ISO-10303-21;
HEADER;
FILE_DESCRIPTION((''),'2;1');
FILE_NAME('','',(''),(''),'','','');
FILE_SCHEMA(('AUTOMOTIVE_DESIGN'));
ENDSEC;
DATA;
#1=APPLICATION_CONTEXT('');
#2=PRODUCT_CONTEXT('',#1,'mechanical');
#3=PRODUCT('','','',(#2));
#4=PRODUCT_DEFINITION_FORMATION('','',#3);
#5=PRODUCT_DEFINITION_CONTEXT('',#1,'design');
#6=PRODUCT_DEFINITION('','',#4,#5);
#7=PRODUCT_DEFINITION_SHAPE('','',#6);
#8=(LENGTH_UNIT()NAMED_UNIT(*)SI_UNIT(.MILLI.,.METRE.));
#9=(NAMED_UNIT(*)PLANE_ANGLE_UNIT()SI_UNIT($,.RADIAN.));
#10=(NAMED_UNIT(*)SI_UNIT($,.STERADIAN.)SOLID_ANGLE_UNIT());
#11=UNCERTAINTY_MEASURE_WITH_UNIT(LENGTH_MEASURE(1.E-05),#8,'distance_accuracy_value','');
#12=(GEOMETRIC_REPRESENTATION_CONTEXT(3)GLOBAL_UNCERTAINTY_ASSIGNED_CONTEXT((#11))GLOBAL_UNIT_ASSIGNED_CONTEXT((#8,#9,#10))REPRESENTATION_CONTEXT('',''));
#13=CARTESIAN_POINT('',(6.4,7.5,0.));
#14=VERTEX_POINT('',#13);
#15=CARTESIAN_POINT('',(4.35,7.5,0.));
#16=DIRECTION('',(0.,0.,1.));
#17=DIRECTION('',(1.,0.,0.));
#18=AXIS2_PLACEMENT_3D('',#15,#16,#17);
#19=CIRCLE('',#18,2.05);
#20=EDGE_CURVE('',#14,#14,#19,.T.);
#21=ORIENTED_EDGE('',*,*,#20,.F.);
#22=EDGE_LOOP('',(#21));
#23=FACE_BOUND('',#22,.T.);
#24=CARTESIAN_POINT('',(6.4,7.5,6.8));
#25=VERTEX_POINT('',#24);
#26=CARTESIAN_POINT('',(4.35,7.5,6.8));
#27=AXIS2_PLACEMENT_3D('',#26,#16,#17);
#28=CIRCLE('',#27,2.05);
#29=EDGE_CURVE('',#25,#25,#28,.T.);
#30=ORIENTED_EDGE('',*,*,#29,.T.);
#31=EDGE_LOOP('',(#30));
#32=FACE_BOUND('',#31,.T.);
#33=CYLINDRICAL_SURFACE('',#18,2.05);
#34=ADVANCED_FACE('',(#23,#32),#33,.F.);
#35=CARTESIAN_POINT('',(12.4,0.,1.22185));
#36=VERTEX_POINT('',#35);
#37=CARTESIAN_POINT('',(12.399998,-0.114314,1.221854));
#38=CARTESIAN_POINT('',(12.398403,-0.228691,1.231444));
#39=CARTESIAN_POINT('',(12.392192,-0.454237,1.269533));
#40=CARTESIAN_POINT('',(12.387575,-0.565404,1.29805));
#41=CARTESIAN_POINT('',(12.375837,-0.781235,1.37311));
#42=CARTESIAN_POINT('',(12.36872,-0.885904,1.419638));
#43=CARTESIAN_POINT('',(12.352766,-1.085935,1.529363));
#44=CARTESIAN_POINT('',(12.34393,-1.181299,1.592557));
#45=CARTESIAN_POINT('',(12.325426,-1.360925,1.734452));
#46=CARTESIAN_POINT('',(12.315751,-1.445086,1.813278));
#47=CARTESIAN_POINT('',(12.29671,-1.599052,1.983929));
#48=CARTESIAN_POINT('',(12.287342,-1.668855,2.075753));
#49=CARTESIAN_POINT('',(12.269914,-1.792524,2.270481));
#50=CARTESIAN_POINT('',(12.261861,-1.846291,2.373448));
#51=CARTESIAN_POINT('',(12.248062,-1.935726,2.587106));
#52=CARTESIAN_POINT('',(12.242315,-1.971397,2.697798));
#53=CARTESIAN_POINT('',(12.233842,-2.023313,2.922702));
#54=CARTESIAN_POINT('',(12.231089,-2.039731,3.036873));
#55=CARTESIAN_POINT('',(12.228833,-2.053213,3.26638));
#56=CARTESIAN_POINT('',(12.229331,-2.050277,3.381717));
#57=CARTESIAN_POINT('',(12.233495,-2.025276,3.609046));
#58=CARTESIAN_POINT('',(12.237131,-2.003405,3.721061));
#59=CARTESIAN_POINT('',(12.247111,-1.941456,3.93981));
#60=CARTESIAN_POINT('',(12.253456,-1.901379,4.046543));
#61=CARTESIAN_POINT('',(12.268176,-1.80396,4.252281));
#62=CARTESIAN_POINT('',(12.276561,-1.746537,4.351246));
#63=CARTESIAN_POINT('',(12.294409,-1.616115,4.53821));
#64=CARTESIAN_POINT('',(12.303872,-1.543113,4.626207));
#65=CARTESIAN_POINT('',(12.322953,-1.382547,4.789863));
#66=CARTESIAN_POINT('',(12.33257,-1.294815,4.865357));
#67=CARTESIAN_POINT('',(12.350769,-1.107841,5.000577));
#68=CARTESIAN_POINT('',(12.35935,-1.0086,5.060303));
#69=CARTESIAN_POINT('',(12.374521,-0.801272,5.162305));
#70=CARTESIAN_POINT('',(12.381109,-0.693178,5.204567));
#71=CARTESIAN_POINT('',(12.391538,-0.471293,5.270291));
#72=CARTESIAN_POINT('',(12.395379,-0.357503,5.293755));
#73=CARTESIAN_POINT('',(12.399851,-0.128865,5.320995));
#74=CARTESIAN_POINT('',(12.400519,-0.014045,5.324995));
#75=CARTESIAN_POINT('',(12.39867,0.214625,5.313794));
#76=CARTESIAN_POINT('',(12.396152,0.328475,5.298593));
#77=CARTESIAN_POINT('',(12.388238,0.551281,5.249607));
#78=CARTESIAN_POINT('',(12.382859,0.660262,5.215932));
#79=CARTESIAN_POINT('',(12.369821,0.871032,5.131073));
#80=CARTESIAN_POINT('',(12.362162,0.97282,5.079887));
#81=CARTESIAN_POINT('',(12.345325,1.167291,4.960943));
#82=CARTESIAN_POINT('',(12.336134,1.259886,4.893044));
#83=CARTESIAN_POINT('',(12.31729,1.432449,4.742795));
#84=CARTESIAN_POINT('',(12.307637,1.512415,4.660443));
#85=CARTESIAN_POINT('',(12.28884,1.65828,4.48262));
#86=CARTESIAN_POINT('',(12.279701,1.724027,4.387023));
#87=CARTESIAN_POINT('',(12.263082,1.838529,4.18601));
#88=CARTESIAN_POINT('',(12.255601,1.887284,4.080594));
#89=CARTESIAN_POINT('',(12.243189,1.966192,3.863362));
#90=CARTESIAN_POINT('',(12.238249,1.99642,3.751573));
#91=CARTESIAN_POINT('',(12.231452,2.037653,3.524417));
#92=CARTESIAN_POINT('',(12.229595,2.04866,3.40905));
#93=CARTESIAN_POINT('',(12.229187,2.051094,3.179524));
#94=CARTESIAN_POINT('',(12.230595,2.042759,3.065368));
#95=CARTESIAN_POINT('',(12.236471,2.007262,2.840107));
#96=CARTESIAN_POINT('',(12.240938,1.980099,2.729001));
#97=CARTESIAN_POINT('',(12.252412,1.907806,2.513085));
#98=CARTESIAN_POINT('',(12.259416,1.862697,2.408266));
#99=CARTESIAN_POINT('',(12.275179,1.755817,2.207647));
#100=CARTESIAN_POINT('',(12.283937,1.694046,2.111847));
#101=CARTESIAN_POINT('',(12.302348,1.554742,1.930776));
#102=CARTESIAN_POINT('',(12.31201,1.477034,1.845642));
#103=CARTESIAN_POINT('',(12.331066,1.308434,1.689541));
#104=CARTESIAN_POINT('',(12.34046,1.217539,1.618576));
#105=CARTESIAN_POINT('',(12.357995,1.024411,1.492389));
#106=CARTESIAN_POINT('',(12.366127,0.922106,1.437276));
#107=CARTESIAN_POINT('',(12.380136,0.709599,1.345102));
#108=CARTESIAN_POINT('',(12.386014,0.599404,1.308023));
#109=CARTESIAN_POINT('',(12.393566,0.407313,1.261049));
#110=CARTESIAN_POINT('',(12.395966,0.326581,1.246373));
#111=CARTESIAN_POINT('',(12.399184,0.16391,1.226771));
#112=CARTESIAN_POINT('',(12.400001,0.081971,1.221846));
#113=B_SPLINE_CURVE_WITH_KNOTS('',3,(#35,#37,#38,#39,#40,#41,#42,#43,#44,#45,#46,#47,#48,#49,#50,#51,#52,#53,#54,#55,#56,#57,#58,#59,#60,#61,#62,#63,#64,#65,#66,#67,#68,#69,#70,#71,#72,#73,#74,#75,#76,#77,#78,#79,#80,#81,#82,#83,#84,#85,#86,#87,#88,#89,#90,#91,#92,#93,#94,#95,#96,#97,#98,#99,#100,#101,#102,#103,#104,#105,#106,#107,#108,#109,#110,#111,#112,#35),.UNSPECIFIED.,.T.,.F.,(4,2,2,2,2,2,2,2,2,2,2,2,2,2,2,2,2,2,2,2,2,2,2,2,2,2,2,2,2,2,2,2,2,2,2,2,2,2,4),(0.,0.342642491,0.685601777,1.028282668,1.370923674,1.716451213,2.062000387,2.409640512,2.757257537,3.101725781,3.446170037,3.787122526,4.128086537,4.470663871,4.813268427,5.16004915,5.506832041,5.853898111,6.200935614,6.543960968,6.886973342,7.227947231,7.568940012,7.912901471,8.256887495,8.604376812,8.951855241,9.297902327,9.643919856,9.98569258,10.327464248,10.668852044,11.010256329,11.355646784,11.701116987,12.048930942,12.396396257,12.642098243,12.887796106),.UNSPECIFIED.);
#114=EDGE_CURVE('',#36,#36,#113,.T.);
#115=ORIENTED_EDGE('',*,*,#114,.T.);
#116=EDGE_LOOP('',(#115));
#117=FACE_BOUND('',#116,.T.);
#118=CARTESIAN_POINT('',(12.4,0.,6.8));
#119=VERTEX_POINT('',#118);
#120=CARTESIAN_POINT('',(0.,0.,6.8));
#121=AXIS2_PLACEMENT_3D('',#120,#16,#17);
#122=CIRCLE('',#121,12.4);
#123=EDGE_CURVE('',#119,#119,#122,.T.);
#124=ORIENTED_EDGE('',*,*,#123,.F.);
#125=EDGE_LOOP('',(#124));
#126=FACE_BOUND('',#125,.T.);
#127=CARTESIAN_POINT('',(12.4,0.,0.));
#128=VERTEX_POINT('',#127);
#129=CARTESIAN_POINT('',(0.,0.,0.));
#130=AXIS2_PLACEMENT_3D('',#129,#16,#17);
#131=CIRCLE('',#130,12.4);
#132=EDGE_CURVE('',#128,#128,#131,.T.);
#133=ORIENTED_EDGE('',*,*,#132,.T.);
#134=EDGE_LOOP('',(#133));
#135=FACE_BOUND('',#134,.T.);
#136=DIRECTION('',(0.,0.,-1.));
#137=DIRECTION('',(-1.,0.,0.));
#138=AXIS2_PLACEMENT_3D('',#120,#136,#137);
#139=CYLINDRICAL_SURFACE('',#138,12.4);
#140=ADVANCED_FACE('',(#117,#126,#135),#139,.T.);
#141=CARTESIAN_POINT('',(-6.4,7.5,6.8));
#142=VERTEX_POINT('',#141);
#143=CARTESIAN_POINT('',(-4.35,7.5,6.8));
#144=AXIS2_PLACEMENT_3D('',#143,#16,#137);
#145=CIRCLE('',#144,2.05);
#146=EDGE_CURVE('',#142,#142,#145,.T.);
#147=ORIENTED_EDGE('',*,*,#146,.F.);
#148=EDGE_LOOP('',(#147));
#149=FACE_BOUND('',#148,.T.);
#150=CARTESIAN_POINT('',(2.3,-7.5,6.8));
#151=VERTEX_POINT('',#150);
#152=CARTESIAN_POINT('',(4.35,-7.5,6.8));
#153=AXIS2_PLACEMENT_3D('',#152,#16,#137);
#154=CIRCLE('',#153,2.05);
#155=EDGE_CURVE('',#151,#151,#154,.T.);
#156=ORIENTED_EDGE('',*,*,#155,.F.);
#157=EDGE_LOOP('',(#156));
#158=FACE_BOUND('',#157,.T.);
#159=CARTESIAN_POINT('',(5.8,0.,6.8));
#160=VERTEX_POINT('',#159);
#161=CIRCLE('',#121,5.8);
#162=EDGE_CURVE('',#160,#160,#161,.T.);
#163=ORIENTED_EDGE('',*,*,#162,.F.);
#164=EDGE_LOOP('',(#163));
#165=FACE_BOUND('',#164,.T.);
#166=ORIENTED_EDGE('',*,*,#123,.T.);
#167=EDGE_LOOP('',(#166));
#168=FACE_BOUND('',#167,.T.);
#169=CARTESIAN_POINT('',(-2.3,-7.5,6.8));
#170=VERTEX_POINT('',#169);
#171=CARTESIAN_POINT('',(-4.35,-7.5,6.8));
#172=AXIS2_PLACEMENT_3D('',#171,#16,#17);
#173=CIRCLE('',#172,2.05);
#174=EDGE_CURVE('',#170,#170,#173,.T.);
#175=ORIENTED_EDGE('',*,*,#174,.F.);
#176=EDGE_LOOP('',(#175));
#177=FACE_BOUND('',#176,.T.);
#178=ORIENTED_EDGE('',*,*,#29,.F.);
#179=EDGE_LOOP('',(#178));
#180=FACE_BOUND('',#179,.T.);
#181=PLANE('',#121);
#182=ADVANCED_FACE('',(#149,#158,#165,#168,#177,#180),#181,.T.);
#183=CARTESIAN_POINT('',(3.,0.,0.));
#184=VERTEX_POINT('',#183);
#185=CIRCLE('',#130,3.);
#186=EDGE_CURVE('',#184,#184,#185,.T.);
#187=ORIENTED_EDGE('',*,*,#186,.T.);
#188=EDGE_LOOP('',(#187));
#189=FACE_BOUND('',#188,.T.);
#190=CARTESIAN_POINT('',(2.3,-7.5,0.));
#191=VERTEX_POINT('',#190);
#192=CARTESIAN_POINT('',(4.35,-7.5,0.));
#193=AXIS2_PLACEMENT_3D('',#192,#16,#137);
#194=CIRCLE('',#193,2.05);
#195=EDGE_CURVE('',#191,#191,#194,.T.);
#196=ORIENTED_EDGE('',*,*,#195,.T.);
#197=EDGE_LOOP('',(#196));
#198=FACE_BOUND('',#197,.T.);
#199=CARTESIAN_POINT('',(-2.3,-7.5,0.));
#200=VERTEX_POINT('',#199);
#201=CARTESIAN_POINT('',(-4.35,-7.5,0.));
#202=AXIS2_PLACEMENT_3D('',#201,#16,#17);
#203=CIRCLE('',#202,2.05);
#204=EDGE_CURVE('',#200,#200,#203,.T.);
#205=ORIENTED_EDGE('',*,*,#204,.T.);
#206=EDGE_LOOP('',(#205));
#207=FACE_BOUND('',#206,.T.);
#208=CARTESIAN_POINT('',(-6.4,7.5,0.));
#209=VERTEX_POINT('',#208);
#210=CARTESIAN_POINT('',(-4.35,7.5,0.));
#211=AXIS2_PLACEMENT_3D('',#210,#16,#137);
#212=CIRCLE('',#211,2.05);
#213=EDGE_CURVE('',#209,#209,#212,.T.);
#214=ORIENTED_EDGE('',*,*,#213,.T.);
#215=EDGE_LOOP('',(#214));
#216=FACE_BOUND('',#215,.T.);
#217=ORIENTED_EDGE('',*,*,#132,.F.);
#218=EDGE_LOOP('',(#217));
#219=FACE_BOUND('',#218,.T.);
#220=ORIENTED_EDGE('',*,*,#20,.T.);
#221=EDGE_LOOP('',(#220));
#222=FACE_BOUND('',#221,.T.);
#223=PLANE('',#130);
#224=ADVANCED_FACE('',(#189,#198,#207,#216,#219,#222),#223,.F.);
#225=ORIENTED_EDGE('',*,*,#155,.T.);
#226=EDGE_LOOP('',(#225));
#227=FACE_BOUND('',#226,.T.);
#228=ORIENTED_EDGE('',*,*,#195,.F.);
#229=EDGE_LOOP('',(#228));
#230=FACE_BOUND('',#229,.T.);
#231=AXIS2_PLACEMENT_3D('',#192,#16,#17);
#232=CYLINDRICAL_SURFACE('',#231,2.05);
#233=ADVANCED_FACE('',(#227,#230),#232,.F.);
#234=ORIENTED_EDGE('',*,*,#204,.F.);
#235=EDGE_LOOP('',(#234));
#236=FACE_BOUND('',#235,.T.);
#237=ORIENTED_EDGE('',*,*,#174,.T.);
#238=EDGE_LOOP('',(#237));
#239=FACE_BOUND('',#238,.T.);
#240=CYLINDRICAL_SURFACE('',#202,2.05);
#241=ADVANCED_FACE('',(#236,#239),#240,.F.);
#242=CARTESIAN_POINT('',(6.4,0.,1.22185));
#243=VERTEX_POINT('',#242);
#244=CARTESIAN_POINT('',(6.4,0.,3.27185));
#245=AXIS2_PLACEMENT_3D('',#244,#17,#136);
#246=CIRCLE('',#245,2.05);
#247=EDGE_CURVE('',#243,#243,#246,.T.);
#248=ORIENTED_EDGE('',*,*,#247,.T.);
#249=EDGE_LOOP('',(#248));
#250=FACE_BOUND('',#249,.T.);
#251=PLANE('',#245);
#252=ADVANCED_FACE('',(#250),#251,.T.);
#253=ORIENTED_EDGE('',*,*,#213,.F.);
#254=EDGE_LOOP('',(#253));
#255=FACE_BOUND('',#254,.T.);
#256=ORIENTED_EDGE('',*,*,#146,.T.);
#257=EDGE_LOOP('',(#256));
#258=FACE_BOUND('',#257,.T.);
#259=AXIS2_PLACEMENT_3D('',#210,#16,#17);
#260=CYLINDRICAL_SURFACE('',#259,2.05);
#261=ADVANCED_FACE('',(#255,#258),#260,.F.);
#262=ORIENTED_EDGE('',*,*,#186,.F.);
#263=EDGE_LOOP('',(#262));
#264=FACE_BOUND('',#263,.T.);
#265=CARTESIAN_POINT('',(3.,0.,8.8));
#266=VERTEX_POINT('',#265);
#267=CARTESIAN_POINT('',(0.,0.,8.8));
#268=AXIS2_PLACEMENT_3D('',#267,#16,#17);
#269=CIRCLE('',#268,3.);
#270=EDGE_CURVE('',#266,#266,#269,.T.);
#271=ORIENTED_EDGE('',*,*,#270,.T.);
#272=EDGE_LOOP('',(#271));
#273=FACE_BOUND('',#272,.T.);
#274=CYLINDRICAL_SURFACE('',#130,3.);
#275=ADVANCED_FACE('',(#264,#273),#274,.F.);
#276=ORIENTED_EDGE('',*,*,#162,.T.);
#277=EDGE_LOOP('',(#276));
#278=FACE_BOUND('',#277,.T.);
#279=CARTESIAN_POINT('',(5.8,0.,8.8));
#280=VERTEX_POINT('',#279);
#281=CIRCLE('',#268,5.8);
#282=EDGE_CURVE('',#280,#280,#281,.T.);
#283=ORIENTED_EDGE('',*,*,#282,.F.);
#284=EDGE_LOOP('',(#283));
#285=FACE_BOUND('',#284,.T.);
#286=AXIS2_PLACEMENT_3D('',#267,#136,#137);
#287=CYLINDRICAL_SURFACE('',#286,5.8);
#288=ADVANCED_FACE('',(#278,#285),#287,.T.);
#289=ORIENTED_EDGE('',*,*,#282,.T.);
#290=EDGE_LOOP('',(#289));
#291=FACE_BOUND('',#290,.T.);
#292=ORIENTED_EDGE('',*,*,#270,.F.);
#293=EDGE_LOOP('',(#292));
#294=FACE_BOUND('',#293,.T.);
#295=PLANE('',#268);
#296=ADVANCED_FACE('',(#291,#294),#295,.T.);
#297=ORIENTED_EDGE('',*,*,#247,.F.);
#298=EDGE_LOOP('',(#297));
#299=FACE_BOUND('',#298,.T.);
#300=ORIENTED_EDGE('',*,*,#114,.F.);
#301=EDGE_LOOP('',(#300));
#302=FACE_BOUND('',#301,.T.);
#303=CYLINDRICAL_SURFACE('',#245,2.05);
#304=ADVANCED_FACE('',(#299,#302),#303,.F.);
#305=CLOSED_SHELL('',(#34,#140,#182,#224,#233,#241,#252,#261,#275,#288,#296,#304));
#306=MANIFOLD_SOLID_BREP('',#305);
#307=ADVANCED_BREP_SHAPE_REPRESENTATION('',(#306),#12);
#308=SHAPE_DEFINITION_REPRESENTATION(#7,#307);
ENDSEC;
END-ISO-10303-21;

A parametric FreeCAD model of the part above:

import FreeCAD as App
import Part
import Sketcher

doc = App.newDocument("Part")
body = doc.addObject("PartDesign::Body", "Body")

# Sketch on XY plane
sketch1 = body.newObject("Sketcher::SketchObject", "Sketch")
sketch1.AttachmentSupport = (doc.getObject("XY_Plane"), [""])
sketch1.MapMode = "FlatFace"
sketch1.addGeometry(Part.Circle(App.Vector(0, 0, 0), App.Vector(0, 0, 1), 12.4), False)
sketch1.addConstraint(Sketcher.Constraint("Coincident", 0, 3, -1, 1))
sketch1.addConstraint(Sketcher.Constraint("Diameter", 0, 24.8))
pad1 = body.newObject("PartDesign::Pad", "Pad")
pad1.Profile = sketch1
pad1.Length = 6.8

# Sketch on XY plane
sketch2 = body.newObject("Sketcher::SketchObject", "Sketch001")
sketch2.AttachmentSupport = (doc.getObject("XY_Plane"), [""])
sketch2.MapMode = "FlatFace"
sketch2.AttachmentOffset = App.Placement(App.Vector(0, 0, 6.8), App.Rotation())
sketch2.addGeometry(Part.Circle(App.Vector(0, 0, 0), App.Vector(0, 0, 1), 5.8), False)
sketch2.addConstraint(Sketcher.Constraint("Coincident", 0, 3, -1, 1))
sketch2.addConstraint(Sketcher.Constraint("Diameter", 0, 11.6))
pad2 = body.newObject("PartDesign::Pad", "Pad001")
pad2.Profile = sketch2
pad2.Length = 2

# Sketch on XY plane
sketch3 = body.newObject("Sketcher::SketchObject", "Sketch002")
sketch3.AttachmentSupport = (doc.getObject("XY_Plane"), [""])
sketch3.MapMode = "FlatFace"
sketch3.AttachmentOffset = App.Placement(App.Vector(0, 0, 8.8), App.Rotation())
sketch3.addGeometry(Part.Circle(App.Vector(0, 0, 0), App.Vector(0, 0, 1), 3), False)
sketch3.addConstraint(Sketcher.Constraint("Coincident", 0, 3, -1, 1))
sketch3.addConstraint(Sketcher.Constraint("Diameter", 0, 6.0))
pocket1 = body.newObject("PartDesign::Pocket", "Pocket")
pocket1.Profile = sketch3
pocket1.Type = "ThroughAll"

# Sketch on XY plane
sketch4 = body.newObject("Sketcher::SketchObject", "Sketch003")
sketch4.AttachmentSupport = (doc.getObject("XY_Plane"), [""])
sketch4.MapMode = "FlatFace"
sketch4.AttachmentOffset = App.Placement(App.Vector(0, 0, 6.8), App.Rotation())
sketch4.addGeometry(Part.Circle(App.Vector(4.35, 7.5, 0), App.Vector(0, 0, 1), 2.05), False)
sketch4.addGeometry(Part.Circle(App.Vector(-4.35, 7.5, 0), App.Vector(0, 0, 1), 2.05), False)
sketch4.addGeometry(Part.Circle(App.Vector(4.35, -7.5, 0), App.Vector(0, 0, 1), 2.05), False)
sketch4.addGeometry(Part.Circle(App.Vector(-4.35, -7.5, 0), App.Vector(0, 0, 1), 2.05), False)
sketch4.addConstraint(Sketcher.Constraint("Equal", 0, 1))
sketch4.addConstraint(Sketcher.Constraint("Equal", 1, 2))
sketch4.addConstraint(Sketcher.Constraint("Equal", 2, 3))
sketch4.addConstraint(Sketcher.Constraint("Symmetric", 1, 3, 2, 3, -1, 1))
sketch4.addConstraint(Sketcher.Constraint("Symmetric", 0, 3, 3, 3, -1, 1))
sketch4.addConstraint(Sketcher.Constraint("Symmetric", 0, 3, 1, 3, -2))
sketch4.addConstraint(Sketcher.Constraint("Diameter", 0, 4.1))
sketch4.addConstraint(Sketcher.Constraint("DistanceY", 2, 3, 0, 3, 15.0))
sketch4.addConstraint(Sketcher.Constraint("DistanceX", 1, 3, 0, 3, 8.7))
pocket2 = body.newObject("PartDesign::Pocket", "Pocket001")
pocket2.Profile = sketch4
pocket2.Type = "ThroughAll"

# Sketch on YZ plane
sketch5 = body.newObject("Sketcher::SketchObject", "Sketch004")
sketch5.AttachmentSupport = (doc.getObject("YZ_Plane"), [""])
sketch5.MapMode = "FlatFace"
sketch5.AttachmentOffset = App.Placement(App.Vector(0, 0, 12.4), App.Rotation())
sketch5.addGeometry(Part.Circle(App.Vector(0, 3.27185, 0), App.Vector(0, 0, 1), 2.05), False)
sketch5.addConstraint(Sketcher.Constraint("PointOnObject", 0, 3, -2))
sketch5.addConstraint(Sketcher.Constraint("Diameter", 0, 4.1))
sketch5.addConstraint(Sketcher.Constraint("DistanceY", -1, 1, 0, 3, 3.27185))
pocket3 = body.newObject("PartDesign::Pocket", "Pocket002")
pocket3.Profile = sketch5
pocket3.Length = 6

doc.recompute()
